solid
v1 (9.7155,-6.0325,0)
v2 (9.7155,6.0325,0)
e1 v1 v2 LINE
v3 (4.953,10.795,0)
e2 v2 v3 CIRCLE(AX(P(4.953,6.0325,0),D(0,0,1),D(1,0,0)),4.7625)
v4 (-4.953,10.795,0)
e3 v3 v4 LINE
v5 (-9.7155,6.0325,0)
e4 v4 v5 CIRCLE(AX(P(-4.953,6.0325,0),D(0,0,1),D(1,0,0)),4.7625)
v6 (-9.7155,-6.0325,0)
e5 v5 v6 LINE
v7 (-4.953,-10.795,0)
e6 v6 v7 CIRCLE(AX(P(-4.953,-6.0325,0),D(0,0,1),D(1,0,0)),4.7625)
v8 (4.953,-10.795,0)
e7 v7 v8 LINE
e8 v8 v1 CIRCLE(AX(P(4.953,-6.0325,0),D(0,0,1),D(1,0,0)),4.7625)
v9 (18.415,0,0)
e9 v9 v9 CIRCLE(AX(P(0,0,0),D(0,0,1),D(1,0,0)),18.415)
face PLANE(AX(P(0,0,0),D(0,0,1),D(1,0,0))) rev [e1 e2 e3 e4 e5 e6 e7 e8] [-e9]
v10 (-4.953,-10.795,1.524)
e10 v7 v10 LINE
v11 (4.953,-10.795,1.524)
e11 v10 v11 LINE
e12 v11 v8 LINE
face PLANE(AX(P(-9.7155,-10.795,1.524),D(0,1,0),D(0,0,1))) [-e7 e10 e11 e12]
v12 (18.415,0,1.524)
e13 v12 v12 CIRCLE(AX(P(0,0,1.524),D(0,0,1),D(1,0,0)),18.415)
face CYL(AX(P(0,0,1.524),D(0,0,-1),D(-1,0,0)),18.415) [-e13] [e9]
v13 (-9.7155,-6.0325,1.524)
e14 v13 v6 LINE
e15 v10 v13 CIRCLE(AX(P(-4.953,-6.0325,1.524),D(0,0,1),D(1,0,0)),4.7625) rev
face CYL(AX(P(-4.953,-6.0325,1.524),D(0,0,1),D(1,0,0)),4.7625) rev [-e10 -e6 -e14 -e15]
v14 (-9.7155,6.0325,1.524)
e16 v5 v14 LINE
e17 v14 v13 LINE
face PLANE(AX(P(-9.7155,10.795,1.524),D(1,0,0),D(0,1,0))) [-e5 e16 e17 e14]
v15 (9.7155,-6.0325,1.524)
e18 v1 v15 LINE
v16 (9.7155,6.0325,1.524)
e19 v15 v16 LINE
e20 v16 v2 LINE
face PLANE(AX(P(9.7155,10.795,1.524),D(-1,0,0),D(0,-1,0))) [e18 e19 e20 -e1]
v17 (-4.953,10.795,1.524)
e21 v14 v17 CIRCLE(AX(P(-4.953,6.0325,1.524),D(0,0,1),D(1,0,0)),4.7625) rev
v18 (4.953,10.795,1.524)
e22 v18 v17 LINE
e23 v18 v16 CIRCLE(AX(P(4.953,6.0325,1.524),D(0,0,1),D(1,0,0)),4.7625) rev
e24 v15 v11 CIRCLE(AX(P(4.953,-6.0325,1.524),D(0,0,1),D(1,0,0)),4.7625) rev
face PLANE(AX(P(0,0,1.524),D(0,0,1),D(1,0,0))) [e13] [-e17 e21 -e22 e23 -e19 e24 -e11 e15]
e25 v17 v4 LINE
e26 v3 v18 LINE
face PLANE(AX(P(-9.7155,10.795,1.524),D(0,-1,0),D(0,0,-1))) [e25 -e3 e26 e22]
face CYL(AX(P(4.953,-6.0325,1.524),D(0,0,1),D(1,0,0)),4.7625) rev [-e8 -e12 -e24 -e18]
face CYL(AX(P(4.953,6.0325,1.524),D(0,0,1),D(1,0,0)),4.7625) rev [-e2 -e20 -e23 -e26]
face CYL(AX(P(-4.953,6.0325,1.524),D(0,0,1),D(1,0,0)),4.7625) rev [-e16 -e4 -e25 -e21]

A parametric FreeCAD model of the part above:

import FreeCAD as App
import Part
import Sketcher
from FreeCAD import Vector
Q = App.Units.Quantity


def edges_at(feature, points):
    """Names of the edges that pass closest to the given points."""
    edges = feature.Shape.Edges
    near = lambda p: min(range(len(edges)), key=lambda i: edges[i].distToShape(Part.Vertex(*p))[0])
    return sorted({f"Edge{near(p) + 1}" for p in points})

doc = App.newDocument("Part")
body = doc.addObject("PartDesign::Body", "Body")

sketch1 = body.newObject("Sketcher::SketchObject", "Sketch")
sketch1.AttachmentSupport = (doc.getObject("XY_Plane"), [""])
sketch1.MapMode = "FlatFace"
sketch1.addGeometry([
    Part.Circle(Vector(0, 0, 0), Vector(0, 0, 1), 18),
    Part.LineSegment(Vector(10, -11, 0), Vector(-10, -11, 0)),
    Part.LineSegment(Vector(-10, -11, 0), Vector(-10, 11, 0)),
    Part.LineSegment(Vector(-10, 11, 0), Vector(10, 11, 0)),
    Part.LineSegment(Vector(10, 11, 0), Vector(10, -11, 0)),
], False)
sketch1.addConstraint([
    Sketcher.Constraint("Coincident", 1, 2, 2, 1),
    Sketcher.Constraint("Coincident", 2, 2, 3, 1),
    Sketcher.Constraint("Coincident", 3, 2, 4, 1),
    Sketcher.Constraint("Coincident", 4, 2, 1, 1),
    Sketcher.Constraint("Horizontal", 1),
    Sketcher.Constraint("Vertical", 2),
    Sketcher.Constraint("Horizontal", 3),
    Sketcher.Constraint("Vertical", 4),
    Sketcher.Constraint("Coincident", 0, 3, -1, 1),
    Sketcher.Constraint("Symmetric", 1, 2, 3, 2, -1, 1),
    Sketcher.Constraint("Diameter", 0, Q("1.45 in")),
    Sketcher.Constraint("DistanceY", 2, 1, 2, 2, Q("0.85 in")),
    Sketcher.Constraint("DistanceX", 1, 2, 1, 1, Q("0.765 in")),
])
pad1 = body.newObject("PartDesign::Pad", "Pad")
pad1.Profile = sketch1
pad1.Length = Q("0.06 in")
doc.recompute()

fillet = body.newObject("PartDesign::Fillet", "Fillet")
fillet.Base = (pad1, edges_at(pad1, [
    (-9.716, 10.795, 0.762),
    (-9.716, -10.795, 0.762),
    (9.716, -10.795, 0.762),
    (9.716, 10.795, 0.762),
]))
fillet.Radius = Q("0.1875 in")

doc.recompute()
